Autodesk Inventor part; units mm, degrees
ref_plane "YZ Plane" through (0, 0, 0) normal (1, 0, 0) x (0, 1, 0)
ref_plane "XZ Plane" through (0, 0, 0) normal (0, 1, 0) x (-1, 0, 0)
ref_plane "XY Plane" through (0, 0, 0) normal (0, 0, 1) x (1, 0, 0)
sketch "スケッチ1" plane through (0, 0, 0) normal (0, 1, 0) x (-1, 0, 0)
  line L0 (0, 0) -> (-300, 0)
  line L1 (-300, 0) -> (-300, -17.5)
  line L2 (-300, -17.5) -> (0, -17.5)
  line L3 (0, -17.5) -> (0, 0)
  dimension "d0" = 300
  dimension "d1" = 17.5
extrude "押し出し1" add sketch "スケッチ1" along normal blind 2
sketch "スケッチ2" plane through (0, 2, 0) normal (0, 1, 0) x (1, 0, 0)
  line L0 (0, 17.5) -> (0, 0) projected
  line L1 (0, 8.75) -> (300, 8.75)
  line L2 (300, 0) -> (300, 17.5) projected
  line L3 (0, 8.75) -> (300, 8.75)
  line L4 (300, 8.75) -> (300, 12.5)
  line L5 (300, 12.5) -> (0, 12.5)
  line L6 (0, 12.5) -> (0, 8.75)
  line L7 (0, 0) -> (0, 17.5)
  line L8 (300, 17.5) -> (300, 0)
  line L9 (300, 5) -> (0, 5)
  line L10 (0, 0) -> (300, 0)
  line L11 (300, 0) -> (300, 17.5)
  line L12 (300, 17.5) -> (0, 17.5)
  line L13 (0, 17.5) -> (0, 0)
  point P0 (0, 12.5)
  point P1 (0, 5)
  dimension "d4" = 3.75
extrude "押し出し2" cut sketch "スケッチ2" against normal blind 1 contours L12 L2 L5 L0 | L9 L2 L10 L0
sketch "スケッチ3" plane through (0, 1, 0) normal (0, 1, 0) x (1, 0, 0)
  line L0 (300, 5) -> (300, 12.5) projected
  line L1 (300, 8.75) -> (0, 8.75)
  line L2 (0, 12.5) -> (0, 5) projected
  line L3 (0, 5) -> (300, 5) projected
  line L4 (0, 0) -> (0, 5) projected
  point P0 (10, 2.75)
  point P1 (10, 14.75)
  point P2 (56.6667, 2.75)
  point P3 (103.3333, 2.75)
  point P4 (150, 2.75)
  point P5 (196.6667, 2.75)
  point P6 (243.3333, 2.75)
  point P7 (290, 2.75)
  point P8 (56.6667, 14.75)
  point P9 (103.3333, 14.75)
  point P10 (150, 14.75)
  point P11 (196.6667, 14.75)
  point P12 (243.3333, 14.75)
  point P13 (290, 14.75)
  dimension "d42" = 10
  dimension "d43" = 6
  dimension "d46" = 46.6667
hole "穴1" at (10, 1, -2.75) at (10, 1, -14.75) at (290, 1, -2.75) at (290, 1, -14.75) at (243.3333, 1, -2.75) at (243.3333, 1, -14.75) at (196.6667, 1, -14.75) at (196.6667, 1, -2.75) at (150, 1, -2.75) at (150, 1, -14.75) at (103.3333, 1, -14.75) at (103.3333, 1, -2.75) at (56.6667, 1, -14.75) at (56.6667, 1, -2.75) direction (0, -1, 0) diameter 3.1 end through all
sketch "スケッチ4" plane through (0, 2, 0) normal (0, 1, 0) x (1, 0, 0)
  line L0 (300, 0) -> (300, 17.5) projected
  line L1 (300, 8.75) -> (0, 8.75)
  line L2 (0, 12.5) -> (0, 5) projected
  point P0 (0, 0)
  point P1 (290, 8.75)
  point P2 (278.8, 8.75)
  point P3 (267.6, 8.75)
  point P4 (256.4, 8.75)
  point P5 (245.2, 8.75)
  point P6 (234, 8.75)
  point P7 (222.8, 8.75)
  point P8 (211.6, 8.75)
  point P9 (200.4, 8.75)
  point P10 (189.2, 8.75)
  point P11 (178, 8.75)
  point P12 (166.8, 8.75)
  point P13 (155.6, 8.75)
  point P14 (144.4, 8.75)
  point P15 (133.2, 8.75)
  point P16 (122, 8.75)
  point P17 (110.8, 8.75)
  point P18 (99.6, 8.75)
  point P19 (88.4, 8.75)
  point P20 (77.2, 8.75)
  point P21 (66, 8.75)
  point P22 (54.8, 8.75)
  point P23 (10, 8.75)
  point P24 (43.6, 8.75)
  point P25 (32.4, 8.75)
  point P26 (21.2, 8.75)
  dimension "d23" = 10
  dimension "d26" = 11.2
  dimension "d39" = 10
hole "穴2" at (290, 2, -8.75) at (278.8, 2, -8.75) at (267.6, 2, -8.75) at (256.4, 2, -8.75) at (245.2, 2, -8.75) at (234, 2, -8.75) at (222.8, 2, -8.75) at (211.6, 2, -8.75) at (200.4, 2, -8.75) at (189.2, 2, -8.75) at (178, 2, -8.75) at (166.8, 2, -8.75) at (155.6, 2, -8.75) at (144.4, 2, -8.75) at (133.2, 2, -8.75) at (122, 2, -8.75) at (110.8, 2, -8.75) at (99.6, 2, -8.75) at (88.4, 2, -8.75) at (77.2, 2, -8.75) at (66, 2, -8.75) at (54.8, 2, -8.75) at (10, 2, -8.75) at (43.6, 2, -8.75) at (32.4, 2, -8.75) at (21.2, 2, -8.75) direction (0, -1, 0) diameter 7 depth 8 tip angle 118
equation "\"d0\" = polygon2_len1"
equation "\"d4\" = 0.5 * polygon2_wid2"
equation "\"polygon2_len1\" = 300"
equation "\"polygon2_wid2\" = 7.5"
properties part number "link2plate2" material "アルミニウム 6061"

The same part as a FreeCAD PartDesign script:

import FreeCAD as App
import Part
import Sketcher

V = App.Vector
Q = App.Units.Quantity


def add_polygon(sketch, points):
    """Adds a closed chain of lines whose ends are joined by coincident constraints."""
    first, n = sketch.GeometryCount, len(points)
    for a, b in zip(points, points[1:] + points[:1]):
        sketch.addGeometry(Part.LineSegment(App.Vector(*a, 0), App.Vector(*b, 0)), False)
    for i in range(n):
        sketch.addConstraint(Sketcher.Constraint("Coincident", first + i, 2, first + (i + 1) % n, 1))

doc = App.newDocument("Part")
body = doc.addObject("PartDesign::Body", "Body")

# Sketch on XZ plane
sketch1 = doc.addObject("Sketcher::SketchObject", "Sketch")
body.addObject(sketch1)
sketch1.AttachmentSupport = (doc.XZ_Plane, [""])
sketch1.MapMode = "FlatFace"
add_polygon(sketch1, [(0, -17.5), (0, 0), (300, 0), (300, -17.5)])  # lines 0-3
sketch1.addConstraint([
    Sketcher.Constraint("Vertical", 0),
    Sketcher.Constraint("Horizontal", 1),
    Sketcher.Constraint("Vertical", 2),
    Sketcher.Constraint("Horizontal", 3),
    Sketcher.Constraint("Coincident", 0, 2, -1, 1),
    Sketcher.Constraint("DistanceX", 1, 1, 1, 2, Q("300 mm")),
    Sketcher.Constraint("DistanceY", 0, 1, 0, 2, Q("17.5 mm")),
])
pad1 = doc.addObject("PartDesign::Pad", "Pad")
body.addObject(pad1)
pad1.Profile = sketch1
pad1.Length = 2
pad1.Reversed = True

# Sketch on XZ plane
sketch2 = doc.addObject("Sketcher::SketchObject", "Sketch001")
body.addObject(sketch2)
sketch2.AttachmentSupport = (doc.XZ_Plane, [""])
sketch2.MapMode = "FlatFace"
sketch2.AttachmentOffset = App.Placement(V(0, 0, -2), App.Rotation())
add_polygon(sketch2, [(300, -17.5), (0, -17.5), (0, -12.5), (300, -12.5)])  # lines 0-3
add_polygon(sketch2, [(300, -5), (0, -5), (0, 0), (300, 0)])  # lines 4-7
sketch2.addConstraint([
    Sketcher.Constraint("Horizontal", 0),
    Sketcher.Constraint("Vertical", 1),
    Sketcher.Constraint("Horizontal", 2),
    Sketcher.Constraint("Vertical", 3),
    Sketcher.Constraint("Horizontal", 4),
    Sketcher.Constraint("Vertical", 5),
    Sketcher.Constraint("Horizontal", 6),
    Sketcher.Constraint("Vertical", 7),
    Sketcher.Constraint("Coincident", 5, 2, -1, 1),
    Sketcher.Constraint("PointOnObject", 0, 2, -2),
    Sketcher.Constraint("Vertical", 3, 2, 6, 2),
    Sketcher.Constraint("Equal", 3, 5),
    Sketcher.Constraint("DistanceX", 0, 2, 0, 1, Q("300 mm")),
    Sketcher.Constraint("DistanceY", 1, 1, 1, 2, Q("5 mm")),
    Sketcher.Constraint("DistanceY", 0, 2, -1, 1, Q("17.5 mm")),
])
pocket1 = doc.addObject("PartDesign::Pocket", "Pocket")
body.addObject(pocket1)
pocket1.Profile = sketch2
pocket1.Length = 1
pocket1.Reversed = True

# Sketch on XZ plane
sketch3 = doc.addObject("Sketcher::SketchObject", "Sketch002")
body.addObject(sketch3)
sketch3.AttachmentSupport = (doc.XZ_Plane, [""])
sketch3.MapMode = "FlatFace"
sketch3.AttachmentOffset = App.Placement(V(0, 0, -1), App.Rotation())
sketch3.addGeometry([
    Part.Circle(V(10, -2.75, 0), V(0, 0, 1), 1.55),  # 0
    Part.Circle(V(10, -14.75, 0), V(0, 0, 1), 1.55),  # 1
    Part.Circle(V(290, -2.75, 0), V(0, 0, 1), 1.55),  # 2
    Part.Circle(V(290, -14.75, 0), V(0, 0, 1), 1.55),  # 3
    Part.Circle(V(243.3333, -2.75, 0), V(0, 0, 1), 1.55),  # 4
    Part.Circle(V(243.3333, -14.75, 0), V(0, 0, 1), 1.55),  # 5
    Part.Circle(V(196.6667, -14.75, 0), V(0, 0, 1), 1.55),  # 6
    Part.Circle(V(196.6667, -2.75, 0), V(0, 0, 1), 1.55),  # 7
    Part.Circle(V(150, -2.75, 0), V(0, 0, 1), 1.55),  # 8
    Part.Circle(V(150, -14.75, 0), V(0, 0, 1), 1.55),  # 9
    Part.Circle(V(103.3333, -14.75, 0), V(0, 0, 1), 1.55),  # 10
    Part.Circle(V(103.3333, -2.75, 0), V(0, 0, 1), 1.55),  # 11
    Part.Circle(V(56.6667, -14.75, 0), V(0, 0, 1), 1.55),  # 12
    Part.Circle(V(56.6667, -2.75, 0), V(0, 0, 1), 1.55),  # 13
], False)
sketch3.addConstraint([
    Sketcher.Constraint("Equal", 0, 1),
    Sketcher.Constraint("Equal", 1, 2),
    Sketcher.Constraint("Equal", 2, 3),
    Sketcher.Constraint("Equal", 3, 4),
    Sketcher.Constraint("Equal", 4, 5),
    Sketcher.Constraint("Equal", 5, 6),
    Sketcher.Constraint("Equal", 6, 7),
    Sketcher.Constraint("Equal", 7, 8),
    Sketcher.Constraint("Equal", 8, 9),
    Sketcher.Constraint("Equal", 9, 10),
    Sketcher.Constraint("Equal", 10, 11),
    Sketcher.Constraint("Equal", 11, 12),
    Sketcher.Constraint("Equal", 12, 13),
    Sketcher.Constraint("Horizontal", 0, 3, 2, 3),
    Sketcher.Constraint("Horizontal", 1, 3, 3, 3),
    Sketcher.Constraint("Horizontal", 2, 3, 4, 3),
    Sketcher.Constraint("Horizontal", 3, 3, 5, 3),
    Sketcher.Constraint("Horizontal", 5, 3, 6, 3),
    Sketcher.Constraint("Horizontal", 4, 3, 7, 3),
    Sketcher.Constraint("Horizontal", 7, 3, 8, 3),
    Sketcher.Constraint("Horizontal", 6, 3, 9, 3),
    Sketcher.Constraint("Horizontal", 9, 3, 10, 3),
    Sketcher.Constraint("Horizontal", 8, 3, 11, 3),
    Sketcher.Constraint("Horizontal", 10, 3, 12, 3),
    Sketcher.Constraint("Horizontal", 11, 3, 13, 3),
    Sketcher.Constraint("Vertical", 0, 3, 1, 3),
    Sketcher.Constraint("Vertical", 2, 3, 3, 3),
    Sketcher.Constraint("Vertical", 4, 3, 5, 3),
    Sketcher.Constraint("Vertical", 6, 3, 7, 3),
    Sketcher.Constraint("Vertical", 8, 3, 9, 3),
    Sketcher.Constraint("Vertical", 10, 3, 11, 3),
    Sketcher.Constraint("Vertical", 12, 3, 13, 3),
    Sketcher.Constraint("Diameter", 0, Q("3.1 mm")),
    Sketcher.Constraint("DistanceX", -1, 1, 0, 3, Q("10 mm")),
    Sketcher.Constraint("DistanceX", -1, 1, 2, 3, Q("290 mm")),
    Sketcher.Constraint("DistanceX", -1, 1, 8, 3, Q("150 mm")),
    Sketcher.Constraint("DistanceY", 1, 3, 0, 3, Q("12 mm")),
    Sketcher.Constraint("DistanceY", 0, 3, -1, 1, Q("2.75 mm")),
    Sketcher.Constraint("DistanceX", -1, 1, 4, 3, Q("243.3333 mm")),
    Sketcher.Constraint("DistanceX", -1, 1, 6, 3, Q("196.6667 mm")),
    Sketcher.Constraint("DistanceX", -1, 1, 10, 3, Q("103.3333 mm")),
    Sketcher.Constraint("DistanceX", -1, 1, 12, 3, Q("56.6667 mm")),
])
doc.recompute()
hole = doc.addObject("PartDesign::Hole", "Hole")
body.addObject(hole)
hole.Profile = sketch3
hole.ThreadType = "None"
hole.Diameter = 3.1
hole.DepthType = "ThroughAll"
hole.Reversed = True

# Sketch on XZ plane
sketch4 = doc.addObject("Sketcher::SketchObject", "Sketch003")
body.addObject(sketch4)
sketch4.AttachmentSupport = (doc.XZ_Plane, [""])
sketch4.MapMode = "FlatFace"
sketch4.AttachmentOffset = App.Placement(V(0, 0, -2), App.Rotation())
sketch4.addGeometry([
    Part.Circle(V(290, -8.75, 0), V(0, 0, 1), 3.5),  # 0
    Part.Circle(V(278.8, -8.75, 0), V(0, 0, 1), 3.5),  # 1
    Part.Circle(V(267.6, -8.75, 0), V(0, 0, 1), 3.5),  # 2
    Part.Circle(V(256.4, -8.75, 0), V(0, 0, 1), 3.5),  # 3
    Part.Circle(V(245.2, -8.75, 0), V(0, 0, 1), 3.5),  # 4
    Part.Circle(V(234, -8.75, 0), V(0, 0, 1), 3.5),  # 5
    Part.Circle(V(222.8, -8.75, 0), V(0, 0, 1), 3.5),  # 6
    Part.Circle(V(211.6, -8.75, 0), V(0, 0, 1), 3.5),  # 7
    Part.Circle(V(200.4, -8.75, 0), V(0, 0, 1), 3.5),  # 8
    Part.Circle(V(189.2, -8.75, 0), V(0, 0, 1), 3.5),  # 9
    Part.Circle(V(178, -8.75, 0), V(0, 0, 1), 3.5),  # 10
    Part.Circle(V(166.8, -8.75, 0), V(0, 0, 1), 3.5),  # 11
    Part.Circle(V(155.6, -8.75, 0), V(0, 0, 1), 3.5),  # 12
    Part.Circle(V(144.4, -8.75, 0), V(0, 0, 1), 3.5),  # 13
    Part.Circle(V(133.2, -8.75, 0), V(0, 0, 1), 3.5),  # 14
    Part.Circle(V(122, -8.75, 0), V(0, 0, 1), 3.5),  # 15
    Part.Circle(V(110.8, -8.75, 0), V(0, 0, 1), 3.5),  # 16
    Part.Circle(V(99.6, -8.75, 0), V(0, 0, 1), 3.5),  # 17
    Part.Circle(V(88.4, -8.75, 0), V(0, 0, 1), 3.5),  # 18
    Part.Circle(V(77.2, -8.75, 0), V(0, 0, 1), 3.5),  # 19
    Part.Circle(V(66, -8.75, 0), V(0, 0, 1), 3.5),  # 20
    Part.Circle(V(54.8, -8.75, 0), V(0, 0, 1), 3.5),  # 21
    Part.Circle(V(10, -8.75, 0), V(0, 0, 1), 3.5),  # 22
    Part.Circle(V(43.6, -8.75, 0), V(0, 0, 1), 3.5),  # 23
    Part.Circle(V(32.4, -8.75, 0), V(0, 0, 1), 3.5),  # 24
    Part.Circle(V(21.2, -8.75, 0), V(0, 0, 1), 3.5),  # 25
], False)
sketch4.addConstraint([
    Sketcher.Constraint("Equal", 0, 1),
    Sketcher.Constraint("Equal", 1, 2),
    Sketcher.Constraint("Equal", 2, 3),
    Sketcher.Constraint("Equal", 3, 4),
    Sketcher.Constraint("Equal", 4, 5),
    Sketcher.Constraint("Equal", 5, 6),
    Sketcher.Constraint("Equal", 6, 7),
    Sketcher.Constraint("Equal", 7, 8),
    Sketcher.Constraint("Equal", 8, 9),
    Sketcher.Constraint("Equal", 9, 10),
    Sketcher.Constraint("Equal", 10, 11),
    Sketcher.Constraint("Equal", 11, 12),
    Sketcher.Constraint("Equal", 12, 13),
    Sketcher.Constraint("Equal", 13, 14),
    Sketcher.Constraint("Equal", 14, 15),
    Sketcher.Constraint("Equal", 15, 16),
    Sketcher.Constraint("Equal", 16, 17),
    Sketcher.Constraint("Equal", 17, 18),
    Sketcher.Constraint("Equal", 18, 19),
    Sketcher.Constraint("Equal", 19, 20),
    Sketcher.Constraint("Equal", 20, 21),
    Sketcher.Constraint("Equal", 21, 22),
    Sketcher.Constraint("Equal", 22, 23),
    Sketcher.Constraint("Equal", 23, 24),
    Sketcher.Constraint("Equal", 24, 25),
    Sketcher.Constraint("Horizontal", 0, 3, 1, 3),
    Sketcher.Constraint("Horizontal", 1, 3, 2, 3),
    Sketcher.Constraint("Horizontal", 2, 3, 3, 3),
    Sketcher.Constraint("Horizontal", 3, 3, 4, 3),
    Sketcher.Constraint("Horizontal", 4, 3, 5, 3),
    Sketcher.Constraint("Horizontal", 5, 3, 6, 3),
    Sketcher.Constraint("Horizontal", 6, 3, 7, 3),
    Sketcher.Constraint("Horizontal", 7, 3, 8, 3),
    Sketcher.Constraint("Horizontal", 8, 3, 9, 3),
    Sketcher.Constraint("Horizontal", 9, 3, 10, 3),
    Sketcher.Constraint("Horizontal", 10, 3, 11, 3),
    Sketcher.Constraint("Horizontal", 11, 3, 12, 3),
    Sketcher.Constraint("Horizontal", 12, 3, 13, 3),
    Sketcher.Constraint("Horizontal", 13, 3, 14, 3),
    Sketcher.Constraint("Horizontal", 14, 3, 15, 3),
    Sketcher.Constraint("Horizontal", 15, 3, 16, 3),
    Sketcher.Constraint("Horizontal", 16, 3, 17, 3),
    Sketcher.Constraint("Horizontal", 17, 3, 18, 3),
    Sketcher.Constraint("Horizontal", 18, 3, 19, 3),
    Sketcher.Constraint("Horizontal", 19, 3, 20, 3),
    Sketcher.Constraint("Horizontal", 20, 3, 21, 3),
    Sketcher.Constraint("Horizontal", 21, 3, 22, 3),
    Sketcher.Constraint("Horizontal", 22, 3, 23, 3),
    Sketcher.Constraint("Horizontal", 23, 3, 24, 3),
    Sketcher.Constraint("Horizontal", 24, 3, 25, 3),
    Sketcher.Constraint("Diameter", 0, Q("7 mm")),
    Sketcher.Constraint("DistanceX", -1, 1, 0, 3, Q("290 mm")),
    Sketcher.Constraint("DistanceX", -1, 1, 5, 3, Q("234 mm")),
    Sketcher.Constraint("DistanceX", -1, 1, 10, 3, Q("178 mm")),
    Sketcher.Constraint("DistanceX", -1, 1, 15, 3, Q("122 mm")),
    Sketcher.Constraint("DistanceX", -1, 1, 20, 3, Q("66 mm")),
    Sketcher.Constraint("DistanceX", -1, 1, 22, 3, Q("10 mm")),
    Sketcher.Constraint("DistanceX", 6, 3, 1, 3, Q("56 mm")),
    Sketcher.Constraint("DistanceX", 7, 3, 2, 3, Q("56 mm")),
    Sketcher.Constraint("DistanceX", 8, 3, 3, 3, Q("56 mm")),
    Sketcher.Constraint("DistanceX", 9, 3, 4, 3, Q("56 mm")),
    Sketcher.Constraint("DistanceX", 11, 3, 6, 3, Q("56 mm")),
    Sketcher.Constraint("DistanceX", 12, 3, 7, 3, Q("56 mm")),
    Sketcher.Constraint("DistanceX", 13, 3, 8, 3, Q("56 mm")),
    Sketcher.Constraint("DistanceX", 14, 3, 9, 3, Q("56 mm")),
    Sketcher.Constraint("DistanceX", 16, 3, 11, 3, Q("56 mm")),
    Sketcher.Constraint("DistanceX", 17, 3, 12, 3, Q("56 mm")),
    Sketcher.Constraint("DistanceX", 18, 3, 13, 3, Q("56 mm")),
    Sketcher.Constraint("DistanceX", 19, 3, 14, 3, Q("56 mm")),
    Sketcher.Constraint("DistanceX", 21, 3, 16, 3, Q("56 mm")),
    Sketcher.Constraint("DistanceX", -1, 1, 1, 3, Q("278.8 mm")),
    Sketcher.Constraint("DistanceX", -1, 1, 2, 3, Q("267.6 mm")),
    Sketcher.Constraint("DistanceX", -1, 1, 3, 3, Q("256.4 mm")),
    Sketcher.Constraint("DistanceX", -1, 1, 4, 3, Q("245.2 mm")),
    Sketcher.Constraint("DistanceX", -1, 1, 23, 3, Q("43.6 mm")),
    Sketcher.Constraint("DistanceX", -1, 1, 24, 3, Q("32.4 mm")),
    Sketcher.Constraint("DistanceX", -1, 1, 25, 3, Q("21.2 mm")),
    Sketcher.Constraint("DistanceY", 0, 3, -1, 1, Q("8.75 mm")),
])
doc.recompute()
hole2 = doc.addObject("PartDesign::Hole", "Hole001")
body.addObject(hole2)
hole2.Profile = sketch4
hole2.ThreadType = "None"
hole2.Diameter = 7
hole2.DepthType = "Dimension"
hole2.Depth = 8
hole2.DrillPoint = "Angled"
hole2.DrillPointAngle = 118
hole2.Reversed = True

doc.recompute()
